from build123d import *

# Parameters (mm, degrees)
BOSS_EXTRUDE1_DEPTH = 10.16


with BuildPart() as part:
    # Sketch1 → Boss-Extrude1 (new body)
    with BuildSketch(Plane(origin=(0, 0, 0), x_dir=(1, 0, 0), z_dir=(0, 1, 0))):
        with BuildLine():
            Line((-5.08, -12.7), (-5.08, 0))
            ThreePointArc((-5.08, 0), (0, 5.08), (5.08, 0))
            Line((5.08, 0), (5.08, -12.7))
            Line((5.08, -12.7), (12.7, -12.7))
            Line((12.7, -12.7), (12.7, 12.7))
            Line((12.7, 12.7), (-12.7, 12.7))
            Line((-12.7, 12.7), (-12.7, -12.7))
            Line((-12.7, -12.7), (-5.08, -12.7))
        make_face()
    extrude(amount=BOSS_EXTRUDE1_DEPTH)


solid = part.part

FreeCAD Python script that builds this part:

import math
import FreeCAD as App
import Part
import Sketcher
Q = App.Units.Quantity

doc = App.newDocument("Part")
params = doc.addObject("Spreadsheet::Sheet", "Params")
for row, (alias, value) in enumerate([
    ("sketch1_radius", "0.2 in"),
    ("sketch1_width", "1 in"),
    ("pad1_length", "0.4 in"),
], start=1):
    params.set(f"A{row}", alias)
    params.set(f"B{row}", "=" + value)
    params.setAlias(f"B{row}", alias)

body = doc.addObject("PartDesign::Body", "Body")

sketch1 = body.newObject("Sketcher::SketchObject", "Sketch")
sketch1.AttachmentSupport = (doc.getObject("XZ_Plane"), [""])
sketch1.MapMode = "FlatFace"
sketch1.addGeometry([
    Part.LineSegment(App.Vector(-5, 13, 0), App.Vector(-5, 0, 0)),
    Part.ArcOfCircle(Part.Circle(App.Vector(0, 0, 0), App.Vector(0, 0, 1), 5), math.radians(180), math.radians(360)),
    Part.LineSegment(App.Vector(5, 0, 0), App.Vector(5, 13, 0)),
    Part.LineSegment(App.Vector(5, 13, 0), App.Vector(13, 13, 0)),
    Part.LineSegment(App.Vector(13, 13, 0), App.Vector(13, -13, 0)),
    Part.LineSegment(App.Vector(13, -13, 0), App.Vector(-13, -13, 0)),
    Part.LineSegment(App.Vector(-13, -13, 0), App.Vector(-13, 13, 0)),
    Part.LineSegment(App.Vector(-13, 13, 0), App.Vector(-5, 13, 0)),
], False)
sketch1.addConstraint([
    Sketcher.Constraint("Tangent", 0, 2, 1, 1),
    Sketcher.Constraint("Tangent", 1, 2, 2, 1),
    Sketcher.Constraint("Coincident", 2, 2, 3, 1),
    Sketcher.Constraint("Coincident", 3, 2, 4, 1),
    Sketcher.Constraint("Coincident", 4, 2, 5, 1),
    Sketcher.Constraint("Coincident", 5, 2, 6, 1),
    Sketcher.Constraint("Coincident", 6, 2, 7, 1),
    Sketcher.Constraint("Coincident", 7, 2, 0, 1),
    Sketcher.Constraint("Vertical", 0),
    Sketcher.Constraint("Vertical", 2),
    Sketcher.Constraint("Horizontal", 3),
    Sketcher.Constraint("Vertical", 4),
    Sketcher.Constraint("Horizontal", 5),
    Sketcher.Constraint("Vertical", 6),
    Sketcher.Constraint("Horizontal", 7),
    Sketcher.Constraint("Coincident", 1, 3, -1, 1),
    Sketcher.Constraint("Symmetric", 3, 2, 5, 2, -1, 1),
    Sketcher.Constraint("Horizontal", 3, 2, 6, 2),
    Sketcher.Constraint("Equal", 5, 4),
    Sketcher.Constraint("Radius", 1, Q("0.2 in")),
    Sketcher.Constraint("DistanceX", 5, 2, 5, 1, Q("1 in")),
])
sketch1.setExpression("Constraints[19]", "Params.sketch1_radius")
sketch1.setExpression("Constraints[20]", "Params.sketch1_width")
pad1 = body.newObject("PartDesign::Pad", "Pad")
pad1.Profile = sketch1
pad1.setExpression("Length", "Params.pad1_length")
pad1.Reversed = True

doc.recompute()
